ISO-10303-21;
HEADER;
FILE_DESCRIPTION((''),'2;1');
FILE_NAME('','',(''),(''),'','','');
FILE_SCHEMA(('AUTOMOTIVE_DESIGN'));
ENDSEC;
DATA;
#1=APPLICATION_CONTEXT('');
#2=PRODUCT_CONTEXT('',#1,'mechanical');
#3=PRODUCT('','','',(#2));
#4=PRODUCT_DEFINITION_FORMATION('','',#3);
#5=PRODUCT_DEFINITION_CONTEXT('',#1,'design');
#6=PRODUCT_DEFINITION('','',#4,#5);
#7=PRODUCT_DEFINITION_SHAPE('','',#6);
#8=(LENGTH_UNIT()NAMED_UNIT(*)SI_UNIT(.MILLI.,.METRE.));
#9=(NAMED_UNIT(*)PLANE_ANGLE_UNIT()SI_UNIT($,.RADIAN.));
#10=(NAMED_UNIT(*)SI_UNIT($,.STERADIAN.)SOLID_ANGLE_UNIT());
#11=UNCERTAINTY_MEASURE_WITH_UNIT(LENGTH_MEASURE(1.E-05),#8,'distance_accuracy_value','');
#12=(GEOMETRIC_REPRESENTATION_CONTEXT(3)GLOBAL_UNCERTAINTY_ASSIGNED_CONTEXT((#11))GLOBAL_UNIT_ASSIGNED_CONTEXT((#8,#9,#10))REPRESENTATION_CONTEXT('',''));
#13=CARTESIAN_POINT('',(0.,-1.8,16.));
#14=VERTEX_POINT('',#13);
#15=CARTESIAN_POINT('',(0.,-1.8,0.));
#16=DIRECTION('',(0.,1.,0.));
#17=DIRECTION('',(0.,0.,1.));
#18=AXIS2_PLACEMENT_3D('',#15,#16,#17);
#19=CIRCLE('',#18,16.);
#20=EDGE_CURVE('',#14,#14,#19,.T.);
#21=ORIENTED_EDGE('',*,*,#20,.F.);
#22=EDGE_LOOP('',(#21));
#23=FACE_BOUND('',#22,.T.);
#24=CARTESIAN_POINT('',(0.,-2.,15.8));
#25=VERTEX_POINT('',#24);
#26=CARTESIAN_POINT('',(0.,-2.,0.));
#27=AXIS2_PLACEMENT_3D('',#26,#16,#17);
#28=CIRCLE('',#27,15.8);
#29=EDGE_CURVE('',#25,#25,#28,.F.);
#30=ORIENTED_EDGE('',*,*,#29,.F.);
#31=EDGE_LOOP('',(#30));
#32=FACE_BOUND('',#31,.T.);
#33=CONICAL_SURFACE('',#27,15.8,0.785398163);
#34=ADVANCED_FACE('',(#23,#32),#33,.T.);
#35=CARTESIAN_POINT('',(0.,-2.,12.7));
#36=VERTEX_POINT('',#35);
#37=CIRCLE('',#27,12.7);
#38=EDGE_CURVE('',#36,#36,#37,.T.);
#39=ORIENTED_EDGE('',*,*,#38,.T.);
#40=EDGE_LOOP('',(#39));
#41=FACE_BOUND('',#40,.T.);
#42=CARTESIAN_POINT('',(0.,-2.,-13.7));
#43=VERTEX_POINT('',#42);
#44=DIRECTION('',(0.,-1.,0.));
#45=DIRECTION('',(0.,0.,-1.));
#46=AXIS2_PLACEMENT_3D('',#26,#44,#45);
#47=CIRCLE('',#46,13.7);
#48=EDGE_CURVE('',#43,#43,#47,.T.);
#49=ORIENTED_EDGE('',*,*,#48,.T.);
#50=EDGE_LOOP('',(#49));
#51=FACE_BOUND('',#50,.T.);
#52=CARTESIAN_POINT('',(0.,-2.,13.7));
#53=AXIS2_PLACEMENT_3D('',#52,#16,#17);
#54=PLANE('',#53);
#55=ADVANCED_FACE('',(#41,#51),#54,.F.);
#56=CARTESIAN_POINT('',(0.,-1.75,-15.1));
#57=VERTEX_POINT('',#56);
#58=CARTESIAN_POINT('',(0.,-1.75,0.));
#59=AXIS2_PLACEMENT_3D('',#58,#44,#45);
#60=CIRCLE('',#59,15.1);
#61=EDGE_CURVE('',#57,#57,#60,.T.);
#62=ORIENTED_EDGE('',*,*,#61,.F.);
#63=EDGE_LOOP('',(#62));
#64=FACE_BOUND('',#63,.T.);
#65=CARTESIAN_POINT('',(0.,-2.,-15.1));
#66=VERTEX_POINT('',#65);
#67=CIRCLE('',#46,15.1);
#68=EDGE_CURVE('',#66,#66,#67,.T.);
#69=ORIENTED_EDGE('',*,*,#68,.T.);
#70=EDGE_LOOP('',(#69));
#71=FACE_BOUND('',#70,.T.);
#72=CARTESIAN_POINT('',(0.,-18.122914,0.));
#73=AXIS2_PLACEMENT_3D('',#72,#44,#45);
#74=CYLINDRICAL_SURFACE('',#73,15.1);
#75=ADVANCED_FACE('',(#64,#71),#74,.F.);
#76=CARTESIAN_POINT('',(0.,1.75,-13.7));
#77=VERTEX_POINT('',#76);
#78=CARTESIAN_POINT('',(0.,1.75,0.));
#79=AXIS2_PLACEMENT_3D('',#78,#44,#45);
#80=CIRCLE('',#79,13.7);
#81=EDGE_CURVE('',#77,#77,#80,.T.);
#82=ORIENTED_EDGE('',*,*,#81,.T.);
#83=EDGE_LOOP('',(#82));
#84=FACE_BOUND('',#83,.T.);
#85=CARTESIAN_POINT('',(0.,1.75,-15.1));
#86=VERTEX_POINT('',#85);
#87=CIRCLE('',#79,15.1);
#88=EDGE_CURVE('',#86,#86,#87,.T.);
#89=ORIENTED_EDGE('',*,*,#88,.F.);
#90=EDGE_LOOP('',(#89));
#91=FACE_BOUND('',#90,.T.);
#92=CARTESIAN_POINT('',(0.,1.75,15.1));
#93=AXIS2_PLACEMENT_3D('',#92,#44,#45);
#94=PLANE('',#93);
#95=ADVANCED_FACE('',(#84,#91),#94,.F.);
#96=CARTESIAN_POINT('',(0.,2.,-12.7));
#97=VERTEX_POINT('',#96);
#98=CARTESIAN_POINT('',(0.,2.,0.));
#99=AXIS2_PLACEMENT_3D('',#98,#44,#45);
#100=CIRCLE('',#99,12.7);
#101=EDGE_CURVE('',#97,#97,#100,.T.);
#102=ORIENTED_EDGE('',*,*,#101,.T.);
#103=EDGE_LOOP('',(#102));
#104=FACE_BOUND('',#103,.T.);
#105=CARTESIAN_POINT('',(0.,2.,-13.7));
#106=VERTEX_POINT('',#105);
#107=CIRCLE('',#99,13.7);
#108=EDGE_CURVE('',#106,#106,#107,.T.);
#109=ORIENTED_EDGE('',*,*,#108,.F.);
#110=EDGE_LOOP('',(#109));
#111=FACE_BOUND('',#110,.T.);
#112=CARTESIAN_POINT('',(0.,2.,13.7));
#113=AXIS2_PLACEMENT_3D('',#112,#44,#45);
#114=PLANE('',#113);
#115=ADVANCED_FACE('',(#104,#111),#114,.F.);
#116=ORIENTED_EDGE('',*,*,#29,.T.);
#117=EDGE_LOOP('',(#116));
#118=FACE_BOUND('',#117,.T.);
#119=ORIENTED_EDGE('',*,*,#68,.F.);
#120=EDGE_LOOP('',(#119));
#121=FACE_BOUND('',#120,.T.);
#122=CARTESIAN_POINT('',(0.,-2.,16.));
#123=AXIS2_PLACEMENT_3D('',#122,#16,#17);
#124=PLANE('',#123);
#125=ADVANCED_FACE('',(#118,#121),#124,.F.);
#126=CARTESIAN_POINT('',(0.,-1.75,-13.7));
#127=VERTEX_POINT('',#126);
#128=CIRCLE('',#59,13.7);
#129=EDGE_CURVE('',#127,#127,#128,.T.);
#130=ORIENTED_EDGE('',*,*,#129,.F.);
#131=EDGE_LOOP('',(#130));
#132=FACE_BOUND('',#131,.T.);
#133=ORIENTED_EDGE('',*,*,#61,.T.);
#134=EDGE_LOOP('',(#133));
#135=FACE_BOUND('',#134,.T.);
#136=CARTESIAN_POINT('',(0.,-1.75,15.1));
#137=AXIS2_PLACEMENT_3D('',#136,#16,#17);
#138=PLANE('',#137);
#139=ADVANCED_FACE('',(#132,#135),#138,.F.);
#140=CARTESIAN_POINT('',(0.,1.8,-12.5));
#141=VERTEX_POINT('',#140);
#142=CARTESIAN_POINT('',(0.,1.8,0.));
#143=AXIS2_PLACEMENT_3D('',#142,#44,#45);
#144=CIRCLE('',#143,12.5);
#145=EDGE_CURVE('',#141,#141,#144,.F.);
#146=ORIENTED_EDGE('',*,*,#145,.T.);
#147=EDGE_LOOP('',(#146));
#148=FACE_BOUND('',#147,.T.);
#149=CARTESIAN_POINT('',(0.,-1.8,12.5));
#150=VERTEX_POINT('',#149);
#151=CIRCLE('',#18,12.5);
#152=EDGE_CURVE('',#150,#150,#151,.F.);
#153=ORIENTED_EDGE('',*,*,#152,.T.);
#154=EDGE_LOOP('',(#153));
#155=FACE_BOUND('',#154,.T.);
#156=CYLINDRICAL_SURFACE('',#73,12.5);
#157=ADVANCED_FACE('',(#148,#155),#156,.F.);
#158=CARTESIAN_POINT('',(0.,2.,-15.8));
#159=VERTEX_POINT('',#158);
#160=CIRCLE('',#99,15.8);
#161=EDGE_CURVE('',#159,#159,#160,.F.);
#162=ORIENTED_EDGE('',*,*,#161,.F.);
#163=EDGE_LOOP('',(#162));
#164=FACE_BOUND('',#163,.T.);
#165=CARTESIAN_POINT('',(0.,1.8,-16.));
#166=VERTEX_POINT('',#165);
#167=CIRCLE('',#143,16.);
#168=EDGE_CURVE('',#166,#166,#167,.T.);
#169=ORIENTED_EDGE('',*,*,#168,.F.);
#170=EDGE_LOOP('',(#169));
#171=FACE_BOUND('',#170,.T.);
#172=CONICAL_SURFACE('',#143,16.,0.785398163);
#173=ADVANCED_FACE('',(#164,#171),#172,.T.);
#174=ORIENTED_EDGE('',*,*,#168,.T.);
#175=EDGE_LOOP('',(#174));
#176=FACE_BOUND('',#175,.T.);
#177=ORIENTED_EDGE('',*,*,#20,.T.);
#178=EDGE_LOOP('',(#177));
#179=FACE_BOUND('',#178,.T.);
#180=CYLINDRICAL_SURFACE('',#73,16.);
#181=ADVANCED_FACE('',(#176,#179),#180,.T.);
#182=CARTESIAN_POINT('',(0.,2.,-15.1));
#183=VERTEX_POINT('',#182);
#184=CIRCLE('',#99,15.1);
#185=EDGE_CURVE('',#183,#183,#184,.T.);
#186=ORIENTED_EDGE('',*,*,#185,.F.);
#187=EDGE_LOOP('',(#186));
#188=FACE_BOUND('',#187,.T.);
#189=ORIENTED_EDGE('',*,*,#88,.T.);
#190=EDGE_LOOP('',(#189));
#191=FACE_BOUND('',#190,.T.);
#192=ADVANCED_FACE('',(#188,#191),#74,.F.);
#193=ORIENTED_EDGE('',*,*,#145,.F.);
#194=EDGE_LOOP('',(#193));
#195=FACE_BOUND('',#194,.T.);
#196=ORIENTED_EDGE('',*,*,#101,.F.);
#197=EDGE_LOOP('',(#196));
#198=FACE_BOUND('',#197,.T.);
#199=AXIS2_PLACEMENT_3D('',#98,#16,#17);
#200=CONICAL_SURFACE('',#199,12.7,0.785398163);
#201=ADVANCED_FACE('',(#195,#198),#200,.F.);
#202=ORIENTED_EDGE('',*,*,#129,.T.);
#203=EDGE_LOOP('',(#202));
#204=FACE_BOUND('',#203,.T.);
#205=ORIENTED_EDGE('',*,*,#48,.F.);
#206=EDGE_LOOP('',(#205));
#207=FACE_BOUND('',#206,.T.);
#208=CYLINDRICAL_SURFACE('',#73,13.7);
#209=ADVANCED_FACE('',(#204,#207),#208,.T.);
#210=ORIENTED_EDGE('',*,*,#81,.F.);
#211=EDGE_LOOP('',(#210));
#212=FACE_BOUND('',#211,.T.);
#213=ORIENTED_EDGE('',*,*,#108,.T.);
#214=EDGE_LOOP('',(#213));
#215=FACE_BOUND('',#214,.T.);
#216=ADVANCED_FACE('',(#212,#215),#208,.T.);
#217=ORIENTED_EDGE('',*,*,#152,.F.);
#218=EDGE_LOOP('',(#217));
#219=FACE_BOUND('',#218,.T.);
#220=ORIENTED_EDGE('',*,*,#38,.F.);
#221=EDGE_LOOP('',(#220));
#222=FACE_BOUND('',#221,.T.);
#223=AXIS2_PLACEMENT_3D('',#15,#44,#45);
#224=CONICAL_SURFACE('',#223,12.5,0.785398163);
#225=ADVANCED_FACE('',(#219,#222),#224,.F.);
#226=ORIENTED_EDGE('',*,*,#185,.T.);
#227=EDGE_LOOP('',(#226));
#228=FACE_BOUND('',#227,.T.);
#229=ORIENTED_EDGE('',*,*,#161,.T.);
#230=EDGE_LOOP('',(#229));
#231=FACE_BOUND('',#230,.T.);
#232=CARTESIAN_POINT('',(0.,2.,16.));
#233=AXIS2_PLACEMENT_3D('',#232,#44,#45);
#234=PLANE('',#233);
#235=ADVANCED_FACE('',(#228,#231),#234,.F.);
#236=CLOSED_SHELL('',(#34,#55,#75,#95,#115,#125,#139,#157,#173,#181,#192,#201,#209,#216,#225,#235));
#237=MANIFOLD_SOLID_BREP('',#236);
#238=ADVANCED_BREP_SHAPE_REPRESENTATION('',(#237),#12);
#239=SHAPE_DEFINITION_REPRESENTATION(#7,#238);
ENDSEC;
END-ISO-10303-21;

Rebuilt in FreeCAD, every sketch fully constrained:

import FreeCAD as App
import Part
import Sketcher
from FreeCAD import Vector


def edges_at(feature, points):
    """Names of the edges that pass closest to the given points."""
    edges = feature.Shape.Edges
    near = lambda p: min(range(len(edges)), key=lambda i: edges[i].distToShape(Part.Vertex(*p))[0])
    return sorted({f"Edge{near(p) + 1}" for p in points})


def add_polygon(sketch, points):
    """Adds a closed chain of lines whose ends are joined by coincident constraints."""
    first, n = sketch.GeometryCount, len(points)
    for a, b in zip(points, points[1:] + points[:1]):
        sketch.addGeometry(Part.LineSegment(App.Vector(*a, 0), App.Vector(*b, 0)), False)
    for i in range(n):
        sketch.addConstraint(Sketcher.Constraint("Coincident", first + i, 2, first + (i + 1) % n, 1))

doc = App.newDocument("Part")
params = doc.addObject("Spreadsheet::Sheet", "Params")
for row, (alias, value) in enumerate([
    ("sketch1_width", "4 mm"),
    ("sketch1_height", "0.9 mm"),
    ("sketch1_height2", "1.4 mm"),
    ("sketch1_height3", "1.2 mm"),
    ("sketch1_width2", "0.25 mm"),
    ("revolution_angle", "360 deg"),
    ("chamfer_size", "0.2 mm"),
], start=1):
    params.set(f"A{row}", alias)
    params.set(f"B{row}", "=" + value)
    params.setAlias(f"B{row}", alias)

body = doc.addObject("PartDesign::Body", "Body")

sketch1 = body.newObject("Sketcher::SketchObject", "Sketch")
sketch1.AttachmentSupport = (doc.getObject("YZ_Plane"), [""])
sketch1.MapMode = "FlatFace"
add_polygon(sketch1, [(2, 16), (-2, 16), (-2, 15.1), (-1.75, 15.1), (-1.75, 13.7), (-2, 13.7), (-2, 12.5), (2, 12.5), (2, 13.7), (1.75, 13.7), (1.75, 15.1), (2, 15.1)])
sketch1.addConstraint(Sketcher.Constraint("Horizontal", 0))
sketch1.addConstraint(Sketcher.Constraint("Vertical", 1))
sketch1.addConstraint(Sketcher.Constraint("Horizontal", 2))
sketch1.addConstraint(Sketcher.Constraint("Vertical", 3))
sketch1.addConstraint(Sketcher.Constraint("Horizontal", 4))
sketch1.addConstraint(Sketcher.Constraint("Vertical", 5))
sketch1.addConstraint(Sketcher.Constraint("Horizontal", 6))
sketch1.addConstraint(Sketcher.Constraint("Vertical", 7))
sketch1.addConstraint(Sketcher.Constraint("Horizontal", 8))
sketch1.addConstraint(Sketcher.Constraint("Vertical", 9))
sketch1.addConstraint(Sketcher.Constraint("Horizontal", 10))
sketch1.addConstraint(Sketcher.Constraint("Vertical", 11))
sketch1.addConstraint(Sketcher.Constraint("Symmetric", 4, 2, 7, 2, -2))
sketch1.addConstraint(Sketcher.Constraint("Symmetric", 2, 2, 9, 2, -2))
sketch1.addConstraint(Sketcher.Constraint("Vertical", 1, 2, 4, 2))
sketch1.addConstraint(Sketcher.Constraint("Vertical", 7, 2, 10, 2))
sketch1.addConstraint(Sketcher.Constraint("DistanceX", 0, 2, 0, 1, 4.0))
sketch1.addConstraint(Sketcher.Constraint("DistanceY", 1, 2, 1, 1, 0.9))
sketch1.addConstraint(Sketcher.Constraint("DistanceY", 3, 2, 3, 1, 1.4))
sketch1.addConstraint(Sketcher.Constraint("DistanceY", 5, 2, 5, 1, 1.2))
sketch1.addConstraint(Sketcher.Constraint("DistanceY", -1, 1, 0, 2, 16.0))
sketch1.addConstraint(Sketcher.Constraint("DistanceX", 2, 1, 2, 2, 0.25))
sketch1.setExpression("Constraints[28]", "Params.sketch1_width")
sketch1.setExpression("Constraints[29]", "Params.sketch1_height")
sketch1.setExpression("Constraints[30]", "Params.sketch1_height2")
sketch1.setExpression("Constraints[31]", "Params.sketch1_height3")
sketch1.setExpression("Constraints[33]", "Params.sketch1_width2")
revolution = body.newObject("PartDesign::Revolution", "Revolution")
revolution.Profile = sketch1
revolution.ReferenceAxis = (sketch1, ["H_Axis"])
revolution.setExpression("Angle", "Params.revolution_angle")
doc.recompute()

chamfer = body.newObject("PartDesign::Chamfer", "Chamfer")
chamfer.Base = (revolution, edges_at(revolution, [
    (0, 2, -12.5),
    (0, -2, -12.5),
    (0, -2, -16),
    (0, 2, -16),
]))
chamfer.setExpression("Size", "Params.chamfer_size")

doc.recompute()
